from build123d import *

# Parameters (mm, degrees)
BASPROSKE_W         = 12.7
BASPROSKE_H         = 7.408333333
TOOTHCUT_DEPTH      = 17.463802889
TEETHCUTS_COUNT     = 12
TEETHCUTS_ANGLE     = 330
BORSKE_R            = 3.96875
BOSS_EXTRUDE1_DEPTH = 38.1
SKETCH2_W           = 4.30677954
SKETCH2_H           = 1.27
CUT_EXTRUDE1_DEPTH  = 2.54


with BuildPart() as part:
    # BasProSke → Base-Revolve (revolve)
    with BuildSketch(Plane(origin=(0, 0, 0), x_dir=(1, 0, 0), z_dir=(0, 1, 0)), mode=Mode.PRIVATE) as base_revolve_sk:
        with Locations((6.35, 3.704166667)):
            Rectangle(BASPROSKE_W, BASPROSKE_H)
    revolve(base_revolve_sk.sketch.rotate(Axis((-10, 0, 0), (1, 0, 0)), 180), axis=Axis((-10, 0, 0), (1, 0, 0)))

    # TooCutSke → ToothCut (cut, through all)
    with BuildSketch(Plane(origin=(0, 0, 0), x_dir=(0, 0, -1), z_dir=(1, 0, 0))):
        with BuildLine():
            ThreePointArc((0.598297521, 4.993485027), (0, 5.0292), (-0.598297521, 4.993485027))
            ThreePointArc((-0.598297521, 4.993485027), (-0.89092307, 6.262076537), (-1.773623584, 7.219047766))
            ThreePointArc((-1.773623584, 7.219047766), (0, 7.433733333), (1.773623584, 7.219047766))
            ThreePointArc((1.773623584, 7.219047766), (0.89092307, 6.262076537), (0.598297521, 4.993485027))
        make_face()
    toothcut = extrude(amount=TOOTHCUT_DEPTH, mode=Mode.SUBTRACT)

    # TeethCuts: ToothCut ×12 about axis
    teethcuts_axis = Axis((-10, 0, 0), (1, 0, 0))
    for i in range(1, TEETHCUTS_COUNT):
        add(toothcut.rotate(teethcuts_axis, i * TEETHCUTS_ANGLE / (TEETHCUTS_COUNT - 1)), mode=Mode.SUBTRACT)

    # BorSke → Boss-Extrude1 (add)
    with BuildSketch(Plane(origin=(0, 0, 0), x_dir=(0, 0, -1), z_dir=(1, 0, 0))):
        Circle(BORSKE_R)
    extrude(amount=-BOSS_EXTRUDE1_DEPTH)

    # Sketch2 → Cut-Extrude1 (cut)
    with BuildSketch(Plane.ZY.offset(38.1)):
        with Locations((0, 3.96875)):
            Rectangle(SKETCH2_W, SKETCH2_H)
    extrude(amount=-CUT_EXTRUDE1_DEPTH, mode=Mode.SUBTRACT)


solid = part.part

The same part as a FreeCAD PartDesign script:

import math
import FreeCAD as App
import Part
import Sketcher

V = App.Vector
Q = App.Units.Quantity


def add_polygon(sketch, points):
    """Adds a closed chain of lines whose ends are joined by coincident constraints."""
    first, n = sketch.GeometryCount, len(points)
    for a, b in zip(points, points[1:] + points[:1]):
        sketch.addGeometry(Part.LineSegment(App.Vector(*a, 0), App.Vector(*b, 0)), False)
    for i in range(n):
        sketch.addConstraint(Sketcher.Constraint("Coincident", first + i, 2, first + (i + 1) % n, 1))

doc = App.newDocument("Part")
body = doc.addObject("PartDesign::Body", "Body")

sketch1 = body.newObject("Sketcher::SketchObject", "Sketch")
sketch1.AttachmentSupport = (doc.getObject("XZ_Plane"), [""])
sketch1.MapMode = "FlatFace"
add_polygon(sketch1, [(0, -7), (0, 0), (13, 0), (13, -7)])
sketch1.addConstraint([
    Sketcher.Constraint("Vertical", 0),
    Sketcher.Constraint("Horizontal", 1),
    Sketcher.Constraint("Vertical", 2),
    Sketcher.Constraint("Horizontal", 3),
    Sketcher.Constraint("Coincident", 0, 2, -1, 1),
    Sketcher.Constraint("DistanceX", 1, 1, 1, 2, Q("0.5 in")),
    Sketcher.Constraint("DistanceY", 0, 1, 0, 2, 7.408333),
])
revolution = body.newObject("PartDesign::Revolution", "Revolution")
revolution.Profile = sketch1
revolution.ReferenceAxis = (sketch1, ["H_Axis"])
revolution.Angle = 360

sketch2 = body.newObject("Sketcher::SketchObject", "Sketch001")
sketch2.AttachmentSupport = (doc.getObject("YZ_Plane"), [""])
sketch2.MapMode = "FlatFace"
sketch2.addGeometry([
    Part.ArcOfCircle(Part.Circle(V(0, 0, 0), V(0, 0, 1), 5), math.radians(-6.83), math.radians(6.83)),
    Part.ArcOfCircle(Part.Circle(V(5.1, -3.1, 0), V(0, 0, 1), 2.5), math.radians(32), math.radians(92)),
    Part.ArcOfCircle(Part.Circle(V(0, 0, 0), V(0, 0, 1), 7.4), math.radians(-14), math.radians(14)),
    Part.ArcOfCircle(Part.Circle(V(5.1, 3.1, 0), V(0, 0, 1), 2.5), math.radians(-92), math.radians(-32)),
], False)
sketch2.addConstraint([
    Sketcher.Constraint("Coincident", 0, 1, 1, 2),
    Sketcher.Constraint("Coincident", 1, 1, 2, 1),
    Sketcher.Constraint("Coincident", 2, 2, 3, 2),
    Sketcher.Constraint("Coincident", 3, 1, 0, 2),
    Sketcher.Constraint("Coincident", 0, 3, -1, 1),
    Sketcher.Constraint("Coincident", 2, 3, -1, 1),
    Sketcher.Constraint("Equal", 1, 3),
    Sketcher.Constraint("Symmetric", 1, 3, 3, 3, -1),
    Sketcher.Constraint("Radius", 1, Q("0.1 in")),
    Sketcher.Constraint("Radius", 0, Q("0.198 in")),
    Sketcher.Constraint("Radius", 2, 7.433733),
    Sketcher.Constraint("DistanceX", -1, 1, 1, 3, 5.075939),
    Sketcher.Constraint("DistanceY", 1, 3, -1, 1, 3.136959),
])
pocket1 = body.newObject("PartDesign::Pocket", "Pocket")
pocket1.Profile = sketch2
pocket1.Type = "ThroughAll"
pocket1.Reversed = True
doc.recompute()

polarpattern = body.newObject("PartDesign::PolarPattern", "PolarPattern")
polarpattern.Originals = [pocket1]
polarpattern.Axis = (doc.getObject("X_Axis"), [""])
polarpattern.Angle = 360
polarpattern.Occurrences = 12
body.Tip = polarpattern

sketch3 = body.newObject("Sketcher::SketchObject", "Sketch002")
sketch3.AttachmentSupport = (doc.getObject("YZ_Plane"), [""])
sketch3.MapMode = "FlatFace"
sketch3.addGeometry(Part.Circle(V(0, 0, 0), V(0, 0, 1), 4), False)
sketch3.addConstraint([
    Sketcher.Constraint("Coincident", 0, 3, -1, 1),
    Sketcher.Constraint("Diameter", 0, Q("0.3125 in")),
])
pad1 = body.newObject("PartDesign::Pad", "Pad")
pad1.Profile = sketch3
pad1.Length = Q("1.5 in")
pad1.Reversed = True

sketch4 = body.newObject("Sketcher::SketchObject", "Sketch003")
sketch4.AttachmentSupport = (doc.getObject("YZ_Plane"), [""])
sketch4.MapMode = "FlatFace"
sketch4.AttachmentOffset = App.Placement(V(0, 0, -1.5 * 25.4), App.Rotation())
add_polygon(sketch4, [(4.6, -2.2), (3.3, -2.2), (3.3, 2.2), (4.6, 2.2)])
sketch4.addConstraint([
    Sketcher.Constraint("Horizontal", 0),
    Sketcher.Constraint("Vertical", 1),
    Sketcher.Constraint("Horizontal", 2),
    Sketcher.Constraint("Vertical", 3),
    Sketcher.Constraint("DistanceX", 0, 2, 0, 1, Q("0.05 in")),
    Sketcher.Constraint("DistanceY", 1, 1, 1, 2, 4.30678),
    Sketcher.Constraint("DistanceX", -1, 1, 0, 2, 3.33375),
    Sketcher.Constraint("DistanceY", 0, 2, -1, 1, 2.15339),
])
pocket2 = body.newObject("PartDesign::Pocket", "Pocket001")
pocket2.Profile = sketch4
pocket2.Length = Q("0.1 in")
pocket2.Reversed = True

doc.recompute()
